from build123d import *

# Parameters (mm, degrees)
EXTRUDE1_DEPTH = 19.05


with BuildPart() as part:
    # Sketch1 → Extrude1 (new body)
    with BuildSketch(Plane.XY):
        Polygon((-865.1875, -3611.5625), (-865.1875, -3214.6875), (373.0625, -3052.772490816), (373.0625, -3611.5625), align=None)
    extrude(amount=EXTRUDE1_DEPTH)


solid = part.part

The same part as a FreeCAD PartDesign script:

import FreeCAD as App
import Part
import Sketcher
Q = App.Units.Quantity


def add_polygon(sketch, points):
    """Adds a closed chain of lines whose ends are joined by coincident constraints."""
    first, n = sketch.GeometryCount, len(points)
    for a, b in zip(points, points[1:] + points[:1]):
        sketch.addGeometry(Part.LineSegment(App.Vector(*a, 0), App.Vector(*b, 0)), False)
    for i in range(n):
        sketch.addConstraint(Sketcher.Constraint("Coincident", first + i, 2, first + (i + 1) % n, 1))

doc = App.newDocument("Part")
body = doc.addObject("PartDesign::Body", "Body")

# Sketch on XY plane
sketch1 = body.newObject("Sketcher::SketchObject", "Sketch")
sketch1.AttachmentSupport = (doc.getObject("XY_Plane"), [""])
sketch1.MapMode = "FlatFace"
add_polygon(sketch1, [(-865, -3215), (-865, -3612), (373, -3612), (373, -3053)])  # lines 0-3
sketch1.addConstraint([
    Sketcher.Constraint("Vertical", 0),
    Sketcher.Constraint("Horizontal", 1),
    Sketcher.Constraint("Vertical", 2),
    Sketcher.Constraint("DistanceX", 1, 1, 1, 2, Q("48.75 in")),
    Sketcher.Constraint("DistanceY", 0, 2, 0, 1, Q("15.625 in")),
    Sketcher.Constraint("DistanceX", 0, 2, -1, 1, Q("34.0625 in")),
    Sketcher.Constraint("DistanceY", 0, 2, -1, 1, Q("142.1875 in")),
    Sketcher.Constraint("DistanceY", 2, 1, 2, 2, 558.790009),
])
pad1 = body.newObject("PartDesign::Pad", "Pad")
pad1.Profile = sketch1
pad1.Length = Q("0.75 in")

doc.recompute()
